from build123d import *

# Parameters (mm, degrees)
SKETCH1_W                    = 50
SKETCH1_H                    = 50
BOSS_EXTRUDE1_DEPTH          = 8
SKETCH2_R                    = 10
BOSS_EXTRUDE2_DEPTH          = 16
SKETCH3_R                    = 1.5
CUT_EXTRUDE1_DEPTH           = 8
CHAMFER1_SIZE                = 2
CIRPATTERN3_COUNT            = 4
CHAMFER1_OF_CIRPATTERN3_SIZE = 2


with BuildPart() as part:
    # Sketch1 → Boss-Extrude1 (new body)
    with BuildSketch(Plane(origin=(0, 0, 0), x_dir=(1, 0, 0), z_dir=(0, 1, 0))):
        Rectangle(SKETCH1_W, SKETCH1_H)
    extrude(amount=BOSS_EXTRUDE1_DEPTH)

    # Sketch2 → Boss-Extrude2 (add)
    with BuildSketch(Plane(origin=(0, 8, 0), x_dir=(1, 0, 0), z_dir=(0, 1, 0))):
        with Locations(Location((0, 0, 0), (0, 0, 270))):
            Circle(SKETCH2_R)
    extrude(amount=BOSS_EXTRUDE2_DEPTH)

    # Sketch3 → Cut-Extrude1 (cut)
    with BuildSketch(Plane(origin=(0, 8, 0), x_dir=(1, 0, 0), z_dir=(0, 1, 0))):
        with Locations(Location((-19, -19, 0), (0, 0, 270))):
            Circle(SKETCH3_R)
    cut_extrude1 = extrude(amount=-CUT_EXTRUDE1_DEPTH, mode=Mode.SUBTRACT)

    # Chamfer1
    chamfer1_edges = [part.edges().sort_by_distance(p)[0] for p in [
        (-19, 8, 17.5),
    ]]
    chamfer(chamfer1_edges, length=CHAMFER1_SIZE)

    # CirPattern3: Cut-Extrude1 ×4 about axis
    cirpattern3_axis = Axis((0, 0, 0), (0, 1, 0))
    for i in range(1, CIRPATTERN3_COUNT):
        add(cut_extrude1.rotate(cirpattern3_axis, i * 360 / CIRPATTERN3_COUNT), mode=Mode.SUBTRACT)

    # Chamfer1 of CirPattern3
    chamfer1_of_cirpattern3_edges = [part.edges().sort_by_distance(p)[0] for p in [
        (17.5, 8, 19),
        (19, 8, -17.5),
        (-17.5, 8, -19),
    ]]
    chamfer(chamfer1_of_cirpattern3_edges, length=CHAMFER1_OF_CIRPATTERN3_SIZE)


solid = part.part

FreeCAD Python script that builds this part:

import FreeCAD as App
import Part
import Sketcher
Q = App.Units.Quantity


def edges_at(feature, points):
    """Names of the edges that pass closest to the given points."""
    edges = feature.Shape.Edges
    near = lambda p: min(range(len(edges)), key=lambda i: edges[i].distToShape(Part.Vertex(*p))[0])
    return sorted({f"Edge{near(p) + 1}" for p in points})

doc = App.newDocument("Part")
params = doc.addObject("Spreadsheet::Sheet", "Params")
for row, (alias, value) in enumerate([
    ("sketch1_width", "50 mm"),
    ("pad1_length", "8 mm"),
    ("sketch2_diameter", "20 mm"),
    ("pad2_length", "16 mm"),
    ("sketch3_diameter", "3 mm"),
    ("pocket1_length", "8 mm"),
    ("chamfer_size", "2 mm"),
    ("chamfer2_size", "2 mm"),
], start=1):
    params.set(f"A{row}", alias)
    params.set(f"B{row}", "=" + value)
    params.setAlias(f"B{row}", alias)

body = doc.addObject("PartDesign::Body", "Body")

# Sketch on XZ plane
sketch1 = doc.addObject("Sketcher::SketchObject", "Sketch")
body.addObject(sketch1)
sketch1.AttachmentSupport = (doc.XZ_Plane, [""])
sketch1.MapMode = "FlatFace"
sketch1.addGeometry(Part.LineSegment(App.Vector(-25, -25, 0), App.Vector(-25, 25, 0)), False)
sketch1.addGeometry(Part.LineSegment(App.Vector(-25, 25, 0), App.Vector(25, 25, 0)), False)
sketch1.addGeometry(Part.LineSegment(App.Vector(25, 25, 0), App.Vector(25, -25, 0)), False)
sketch1.addGeometry(Part.LineSegment(App.Vector(25, -25, 0), App.Vector(-25, -25, 0)), False)
sketch1.addConstraint(Sketcher.Constraint("Coincident", 0, 2, 1, 1))
sketch1.addConstraint(Sketcher.Constraint("Coincident", 1, 2, 2, 1))
sketch1.addConstraint(Sketcher.Constraint("Coincident", 2, 2, 3, 1))
sketch1.addConstraint(Sketcher.Constraint("Coincident", 3, 2, 0, 1))
sketch1.addConstraint(Sketcher.Constraint("Vertical", 0))
sketch1.addConstraint(Sketcher.Constraint("Horizontal", 1))
sketch1.addConstraint(Sketcher.Constraint("Vertical", 2))
sketch1.addConstraint(Sketcher.Constraint("Horizontal", 3))
sketch1.addConstraint(Sketcher.Constraint("Symmetric", 0, 2, 2, 2, -1, 1))
sketch1.addConstraint(Sketcher.Constraint("Equal", 3, 0))
sketch1.addConstraint(Sketcher.Constraint("DistanceX", 1, 1, 1, 2, Q("50 mm")))
sketch1.setExpression("Constraints[10]", "Params.sketch1_width")
pad1 = doc.addObject("PartDesign::Pad", "Pad")
body.addObject(pad1)
pad1.Profile = sketch1
pad1.setExpression("Length", "Params.pad1_length")
pad1.Reversed = True

# Sketch on XZ plane
sketch2 = doc.addObject("Sketcher::SketchObject", "Sketch001")
body.addObject(sketch2)
sketch2.AttachmentSupport = (doc.XZ_Plane, [""])
sketch2.MapMode = "FlatFace"
sketch2.AttachmentOffset = App.Placement(App.Vector(0, 0, -8), App.Rotation())
sketch2.addGeometry(Part.Circle(App.Vector(0, 0, 0), App.Vector(0, 0, 1), 10), False)
sketch2.addConstraint(Sketcher.Constraint("Coincident", 0, 3, -1, 1))
sketch2.addConstraint(Sketcher.Constraint("Diameter", 0, Q("20 mm")))
sketch2.setExpression("Constraints[1]", "Params.sketch2_diameter")
pad2 = doc.addObject("PartDesign::Pad", "Pad001")
body.addObject(pad2)
pad2.Profile = sketch2
pad2.setExpression("Length", "Params.pad2_length")
pad2.Reversed = True

# Sketch on XZ plane
sketch3 = doc.addObject("Sketcher::SketchObject", "Sketch002")
body.addObject(sketch3)
sketch3.AttachmentSupport = (doc.XZ_Plane, [""])
sketch3.MapMode = "FlatFace"
sketch3.AttachmentOffset = App.Placement(App.Vector(0, 0, -8), App.Rotation())
sketch3.addGeometry(Part.Circle(App.Vector(-19, 19, 0), App.Vector(0, 0, 1), 1.5), False)
sketch3.addConstraint(Sketcher.Constraint("Diameter", 0, Q("3 mm")))
sketch3.addConstraint(Sketcher.Constraint("DistanceX", 0, 3, -1, 1, Q("19 mm")))
sketch3.addConstraint(Sketcher.Constraint("DistanceY", -1, 1, 0, 3, Q("19 mm")))
sketch3.setExpression("Constraints[0]", "Params.sketch3_diameter")
pocket1 = doc.addObject("PartDesign::Pocket", "Pocket")
body.addObject(pocket1)
pocket1.Profile = sketch3
pocket1.setExpression("Length", "Params.pocket1_length")
pocket1.Reversed = True
doc.recompute()

chamfer = doc.addObject("PartDesign::Chamfer", "Chamfer")
body.addObject(chamfer)
chamfer.Base = (pocket1, edges_at(pocket1, [(-19, 8, 17.5)]))
chamfer.setExpression("Size", "Params.chamfer_size")
doc.recompute()

polarpattern = doc.addObject("PartDesign::PolarPattern", "PolarPattern")
body.addObject(polarpattern)
polarpattern.Originals = [pocket1]
polarpattern.Axis = (doc.Y_Axis, [""])
polarpattern.Angle = 360
polarpattern.Occurrences = 4
body.Tip = polarpattern
doc.recompute()

chamfer2 = doc.addObject("PartDesign::Chamfer", "Chamfer001")
body.addObject(chamfer2)
chamfer2.Base = (polarpattern, edges_at(polarpattern, [(17.5, 8, 19), (19, 8, -17.5), (-17.5, 8, -19)]))
chamfer2.setExpression("Size", "Params.chamfer2_size")

doc.recompute()
